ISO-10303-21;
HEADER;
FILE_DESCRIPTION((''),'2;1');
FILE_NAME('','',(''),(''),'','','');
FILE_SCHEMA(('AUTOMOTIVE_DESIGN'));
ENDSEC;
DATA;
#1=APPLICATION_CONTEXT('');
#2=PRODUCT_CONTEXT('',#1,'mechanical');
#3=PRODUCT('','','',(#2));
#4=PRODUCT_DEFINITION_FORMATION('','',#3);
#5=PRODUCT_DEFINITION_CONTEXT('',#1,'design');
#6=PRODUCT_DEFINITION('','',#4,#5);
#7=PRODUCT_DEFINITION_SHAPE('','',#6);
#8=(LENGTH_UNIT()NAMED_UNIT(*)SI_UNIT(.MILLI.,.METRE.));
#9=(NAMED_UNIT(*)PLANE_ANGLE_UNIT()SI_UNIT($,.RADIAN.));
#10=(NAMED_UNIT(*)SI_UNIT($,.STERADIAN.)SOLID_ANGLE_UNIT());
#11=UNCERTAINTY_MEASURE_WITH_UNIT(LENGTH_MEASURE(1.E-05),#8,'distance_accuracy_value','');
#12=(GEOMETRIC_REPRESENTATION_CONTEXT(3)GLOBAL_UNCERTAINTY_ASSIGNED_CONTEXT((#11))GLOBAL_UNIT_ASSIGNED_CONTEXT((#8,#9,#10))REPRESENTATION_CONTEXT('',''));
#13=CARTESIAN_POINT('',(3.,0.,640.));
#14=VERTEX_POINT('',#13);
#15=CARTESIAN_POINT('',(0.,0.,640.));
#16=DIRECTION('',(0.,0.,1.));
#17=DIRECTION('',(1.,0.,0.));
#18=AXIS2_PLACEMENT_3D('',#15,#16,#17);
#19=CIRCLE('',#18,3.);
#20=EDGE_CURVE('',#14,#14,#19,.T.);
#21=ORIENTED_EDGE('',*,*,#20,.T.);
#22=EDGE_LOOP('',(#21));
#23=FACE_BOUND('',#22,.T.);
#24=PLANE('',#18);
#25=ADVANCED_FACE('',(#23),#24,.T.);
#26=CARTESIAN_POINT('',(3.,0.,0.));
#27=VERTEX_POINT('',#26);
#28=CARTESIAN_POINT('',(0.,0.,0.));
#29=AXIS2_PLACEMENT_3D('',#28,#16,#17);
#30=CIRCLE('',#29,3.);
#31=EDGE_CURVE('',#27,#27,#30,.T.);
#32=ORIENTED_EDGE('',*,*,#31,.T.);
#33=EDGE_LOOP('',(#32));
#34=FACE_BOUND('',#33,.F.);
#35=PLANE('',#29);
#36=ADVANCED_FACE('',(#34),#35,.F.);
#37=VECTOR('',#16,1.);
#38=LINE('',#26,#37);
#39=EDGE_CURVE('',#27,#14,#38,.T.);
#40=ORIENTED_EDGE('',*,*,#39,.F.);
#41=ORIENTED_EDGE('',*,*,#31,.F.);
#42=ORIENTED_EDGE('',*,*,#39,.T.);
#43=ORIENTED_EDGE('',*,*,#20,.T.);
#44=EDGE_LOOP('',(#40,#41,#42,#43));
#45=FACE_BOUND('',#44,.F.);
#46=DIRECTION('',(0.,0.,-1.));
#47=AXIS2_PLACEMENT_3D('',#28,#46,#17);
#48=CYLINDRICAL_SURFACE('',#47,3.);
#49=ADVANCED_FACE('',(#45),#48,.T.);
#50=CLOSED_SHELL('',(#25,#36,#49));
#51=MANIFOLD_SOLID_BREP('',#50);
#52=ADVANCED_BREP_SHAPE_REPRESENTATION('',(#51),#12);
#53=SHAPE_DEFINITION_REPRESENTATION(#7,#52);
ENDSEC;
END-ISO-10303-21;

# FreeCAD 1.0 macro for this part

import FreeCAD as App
import Part
import Sketcher
Q = App.Units.Quantity

doc = App.newDocument("Part")
body = doc.addObject("PartDesign::Body", "Body")

# Sketch on XY plane
sketch1 = doc.addObject("Sketcher::SketchObject", "Sketch")
body.addObject(sketch1)
sketch1.AttachmentSupport = (doc.XY_Plane, [""])
sketch1.MapMode = "FlatFace"
sketch1.addGeometry(Part.Circle(App.Vector(0, 0, 0), App.Vector(0, 0, 1), 3), False)
sketch1.addConstraint(Sketcher.Constraint("Coincident", 0, 3, -1, 1))
sketch1.addConstraint(Sketcher.Constraint("Diameter", 0, Q("6 mm")))
pad1 = doc.addObject("PartDesign::Pad", "Pad")
body.addObject(pad1)
pad1.Profile = sketch1
pad1.Length = 640

doc.recompute()
